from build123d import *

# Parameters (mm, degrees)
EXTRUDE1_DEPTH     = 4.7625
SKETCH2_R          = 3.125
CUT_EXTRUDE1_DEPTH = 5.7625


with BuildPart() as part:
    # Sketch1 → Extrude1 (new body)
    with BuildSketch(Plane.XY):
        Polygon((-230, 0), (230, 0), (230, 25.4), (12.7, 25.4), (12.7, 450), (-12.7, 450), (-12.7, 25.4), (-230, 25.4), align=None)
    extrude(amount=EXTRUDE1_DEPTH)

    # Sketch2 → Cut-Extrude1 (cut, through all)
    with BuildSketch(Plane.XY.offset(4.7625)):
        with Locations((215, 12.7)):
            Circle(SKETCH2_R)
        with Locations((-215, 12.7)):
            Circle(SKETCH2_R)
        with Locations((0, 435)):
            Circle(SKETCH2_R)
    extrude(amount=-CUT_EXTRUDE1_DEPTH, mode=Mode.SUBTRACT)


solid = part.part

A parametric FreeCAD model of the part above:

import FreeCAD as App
import Part
import Sketcher

V = App.Vector
Q = App.Units.Quantity

doc = App.newDocument("Part")
params = doc.addObject("Spreadsheet::Sheet", "Params")
for row, (alias, value) in enumerate([
    ("sketch1_width", "460 mm"),
    ("sketch1_width2", "217.3 mm"),
    ("sketch1_height", "424.6 mm"),
    ("pad1_length", "4.7625 mm"),
    ("sketch2_diameter", "6.25 mm"),
], start=1):
    params.set(f"A{row}", alias)
    params.set(f"B{row}", "=" + value)
    params.setAlias(f"B{row}", alias)

body = doc.addObject("PartDesign::Body", "Body")

sketch1 = body.newObject("Sketcher::SketchObject", "Sketch")
sketch1.AttachmentSupport = (doc.getObject("XY_Plane"), [""])
sketch1.MapMode = "FlatFace"
sketch1.addGeometry([
    Part.LineSegment(V(-230, 0, 0), V(230, 0, 0)),
    Part.LineSegment(V(230, 0, 0), V(230, 25, 0)),
    Part.LineSegment(V(230, 25, 0), V(13, 25, 0)),
    Part.LineSegment(V(13, 25, 0), V(13, 450, 0)),
    Part.LineSegment(V(13, 450, 0), V(-13, 450, 0)),
    Part.LineSegment(V(-13, 450, 0), V(-13, 25, 0)),
    Part.LineSegment(V(-13, 25, 0), V(-230, 25, 0)),
    Part.LineSegment(V(-230, 25, 0), V(-230, 0, 0)),
], False)
sketch1.addConstraint([
    Sketcher.Constraint("Coincident", 0, 2, 1, 1),
    Sketcher.Constraint("Coincident", 1, 2, 2, 1),
    Sketcher.Constraint("Coincident", 2, 2, 3, 1),
    Sketcher.Constraint("Coincident", 3, 2, 4, 1),
    Sketcher.Constraint("Coincident", 4, 2, 5, 1),
    Sketcher.Constraint("Coincident", 5, 2, 6, 1),
    Sketcher.Constraint("Coincident", 6, 2, 7, 1),
    Sketcher.Constraint("Coincident", 7, 2, 0, 1),
    Sketcher.Constraint("Horizontal", 0),
    Sketcher.Constraint("Vertical", 1),
    Sketcher.Constraint("Horizontal", 2),
    Sketcher.Constraint("Vertical", 3),
    Sketcher.Constraint("Horizontal", 4),
    Sketcher.Constraint("Vertical", 5),
    Sketcher.Constraint("Horizontal", 6),
    Sketcher.Constraint("Vertical", 7),
    Sketcher.Constraint("Symmetric", 0, 2, 7, 2, -1, 1),
    Sketcher.Constraint("Symmetric", 2, 2, 5, 2, -2),
    Sketcher.Constraint("Equal", 4, 1),
    Sketcher.Constraint("DistanceX", 0, 1, 0, 2, Q("460 mm")),
    Sketcher.Constraint("DistanceX", 2, 2, 2, 1, Q("217.3 mm")),
    Sketcher.Constraint("DistanceY", 3, 1, 3, 2, Q("424.6 mm")),
])
sketch1.setExpression("Constraints[19]", "Params.sketch1_width")
sketch1.setExpression("Constraints[20]", "Params.sketch1_width2")
sketch1.setExpression("Constraints[21]", "Params.sketch1_height")
pad1 = body.newObject("PartDesign::Pad", "Pad")
pad1.Profile = sketch1
pad1.setExpression("Length", "Params.pad1_length")

sketch2 = body.newObject("Sketcher::SketchObject", "Sketch001")
sketch2.AttachmentSupport = (doc.getObject("XY_Plane"), [""])
sketch2.MapMode = "FlatFace"
sketch2.AttachmentOffset = App.Placement(V(0, 0, 4.7625), App.Rotation())
sketch2.addGeometry([
    Part.Circle(V(215, 12.7, 0), V(0, 0, 1), 3.1),
    Part.Circle(V(-215, 12.7, 0), V(0, 0, 1), 3.1),
    Part.Circle(V(0, 435, 0), V(0, 0, 1), 3.1),
], False)
sketch2.addConstraint([
    Sketcher.Constraint("Equal", 0, 1),
    Sketcher.Constraint("Equal", 1, 2),
    Sketcher.Constraint("Symmetric", 0, 3, 1, 3, -2),
    Sketcher.Constraint("PointOnObject", 2, 3, -2),
    Sketcher.Constraint("Diameter", 0, Q("6.25 mm")),
    Sketcher.Constraint("DistanceX", -1, 1, 0, 3, Q("215 mm")),
    Sketcher.Constraint("DistanceY", -1, 1, 2, 3, Q("435 mm")),
    Sketcher.Constraint("DistanceY", -1, 1, 0, 3, Q("12.7 mm")),
])
sketch2.setExpression("Constraints[4]", "Params.sketch2_diameter")
pocket1 = body.newObject("PartDesign::Pocket", "Pocket")
pocket1.Profile = sketch2
pocket1.Type = "ThroughAll"

doc.recompute()
